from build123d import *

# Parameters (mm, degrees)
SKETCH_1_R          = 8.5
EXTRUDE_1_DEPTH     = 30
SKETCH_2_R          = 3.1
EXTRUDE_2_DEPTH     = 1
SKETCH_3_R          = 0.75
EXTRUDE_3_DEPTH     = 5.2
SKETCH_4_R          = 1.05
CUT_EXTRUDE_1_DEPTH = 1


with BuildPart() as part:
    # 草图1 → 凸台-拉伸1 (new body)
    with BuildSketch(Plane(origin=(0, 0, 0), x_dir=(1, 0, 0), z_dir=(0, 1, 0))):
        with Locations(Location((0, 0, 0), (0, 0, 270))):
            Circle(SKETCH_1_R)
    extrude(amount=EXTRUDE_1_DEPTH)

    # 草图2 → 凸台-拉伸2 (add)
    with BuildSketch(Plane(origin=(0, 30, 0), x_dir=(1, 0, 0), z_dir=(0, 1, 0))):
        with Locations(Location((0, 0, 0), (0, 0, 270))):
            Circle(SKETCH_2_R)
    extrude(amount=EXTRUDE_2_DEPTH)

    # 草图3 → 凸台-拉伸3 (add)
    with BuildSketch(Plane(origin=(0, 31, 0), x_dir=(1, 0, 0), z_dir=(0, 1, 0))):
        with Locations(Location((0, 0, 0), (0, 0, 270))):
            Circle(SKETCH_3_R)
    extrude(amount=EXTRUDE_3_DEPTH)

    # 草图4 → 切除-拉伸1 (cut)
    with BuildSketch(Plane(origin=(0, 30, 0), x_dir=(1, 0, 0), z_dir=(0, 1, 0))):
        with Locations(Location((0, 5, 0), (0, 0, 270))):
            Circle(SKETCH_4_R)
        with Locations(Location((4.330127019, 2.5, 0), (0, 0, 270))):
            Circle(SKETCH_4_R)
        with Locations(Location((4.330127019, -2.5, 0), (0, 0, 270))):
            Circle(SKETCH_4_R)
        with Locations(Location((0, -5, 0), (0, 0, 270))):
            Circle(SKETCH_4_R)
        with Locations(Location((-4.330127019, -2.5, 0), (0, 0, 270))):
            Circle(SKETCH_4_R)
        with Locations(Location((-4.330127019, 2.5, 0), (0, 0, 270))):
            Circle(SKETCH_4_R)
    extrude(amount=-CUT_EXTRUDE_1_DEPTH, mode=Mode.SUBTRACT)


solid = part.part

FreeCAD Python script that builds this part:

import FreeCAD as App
import Part
import Sketcher
from FreeCAD import Vector

doc = App.newDocument("Part")
body = doc.addObject("PartDesign::Body", "Body")

# Sketch on XZ plane
sketch1 = body.newObject("Sketcher::SketchObject", "Sketch")
sketch1.AttachmentSupport = (doc.getObject("XZ_Plane"), [""])
sketch1.MapMode = "FlatFace"
sketch1.addGeometry(Part.Circle(Vector(0, 0, 0), Vector(0, 0, 1), 8), False)
sketch1.addConstraint([
    Sketcher.Constraint("Coincident", 0, 3, -1, 1),
    Sketcher.Constraint("Diameter", 0, 17.0),
])
pad1 = body.newObject("PartDesign::Pad", "Pad")
pad1.Profile = sketch1
pad1.Length = 30
pad1.Reversed = True

# Sketch on XZ plane
sketch2 = body.newObject("Sketcher::SketchObject", "Sketch001")
sketch2.AttachmentSupport = (doc.getObject("XZ_Plane"), [""])
sketch2.MapMode = "FlatFace"
sketch2.AttachmentOffset = App.Placement(Vector(0, 0, -30), App.Rotation())
sketch2.addGeometry(Part.Circle(Vector(0, 0, 0), Vector(0, 0, 1), 3.1), False)
sketch2.addConstraint([
    Sketcher.Constraint("Coincident", 0, 3, -1, 1),
    Sketcher.Constraint("Diameter", 0, 6.2),
])
pad2 = body.newObject("PartDesign::Pad", "Pad001")
pad2.Profile = sketch2
pad2.Length = 1
pad2.Reversed = True

# Sketch on XZ plane
sketch3 = body.newObject("Sketcher::SketchObject", "Sketch002")
sketch3.AttachmentSupport = (doc.getObject("XZ_Plane"), [""])
sketch3.MapMode = "FlatFace"
sketch3.AttachmentOffset = App.Placement(Vector(0, 0, -31), App.Rotation())
sketch3.addGeometry(Part.Circle(Vector(0, 0, 0), Vector(0, 0, 1), 0.8), False)
sketch3.addConstraint([
    Sketcher.Constraint("Coincident", 0, 3, -1, 1),
    Sketcher.Constraint("Diameter", 0, 1.5),
])
pad3 = body.newObject("PartDesign::Pad", "Pad002")
pad3.Profile = sketch3
pad3.Length = 5.2
pad3.Reversed = True

# Sketch on XZ plane
sketch4 = body.newObject("Sketcher::SketchObject", "Sketch003")
sketch4.AttachmentSupport = (doc.getObject("XZ_Plane"), [""])
sketch4.MapMode = "FlatFace"
sketch4.AttachmentOffset = App.Placement(Vector(0, 0, -30), App.Rotation())
sketch4.addGeometry([
    Part.Circle(Vector(0, -5, 0), Vector(0, 0, 1), 1.1),  # 0
    Part.Circle(Vector(4.3, -2.5, 0), Vector(0, 0, 1), 1.1),  # 1
    Part.Circle(Vector(4.3, 2.5, 0), Vector(0, 0, 1), 1.1),  # 2
    Part.Circle(Vector(0, 5, 0), Vector(0, 0, 1), 1.1),  # 3
    Part.Circle(Vector(-4.3, 2.5, 0), Vector(0, 0, 1), 1.1),  # 4
    Part.Circle(Vector(-4.3, -2.5, 0), Vector(0, 0, 1), 1.1),  # 5
], False)
sketch4.addConstraint([
    Sketcher.Constraint("Equal", 0, 1),
    Sketcher.Constraint("Equal", 1, 2),
    Sketcher.Constraint("Equal", 2, 3),
    Sketcher.Constraint("Equal", 3, 4),
    Sketcher.Constraint("Equal", 4, 5),
    Sketcher.Constraint("Symmetric", 0, 3, 3, 3, -1, 1),
    Sketcher.Constraint("Symmetric", 1, 3, 4, 3, -1, 1),
    Sketcher.Constraint("Symmetric", 2, 3, 5, 3, -1, 1),
    Sketcher.Constraint("Symmetric", 2, 3, 4, 3, -2),
    Sketcher.Constraint("PointOnObject", 0, 3, -2),
    Sketcher.Constraint("Diameter", 0, 2.1),
    Sketcher.Constraint("DistanceY", 0, 3, -1, 1, 5.0),
    Sketcher.Constraint("DistanceY", 1, 3, 2, 3, 5.0),
    Sketcher.Constraint("DistanceX", -1, 1, 1, 3, 4.330127),
])
pocket1 = body.newObject("PartDesign::Pocket", "Pocket")
pocket1.Profile = sketch4
pocket1.Length = 1
pocket1.Reversed = True

doc.recompute()
